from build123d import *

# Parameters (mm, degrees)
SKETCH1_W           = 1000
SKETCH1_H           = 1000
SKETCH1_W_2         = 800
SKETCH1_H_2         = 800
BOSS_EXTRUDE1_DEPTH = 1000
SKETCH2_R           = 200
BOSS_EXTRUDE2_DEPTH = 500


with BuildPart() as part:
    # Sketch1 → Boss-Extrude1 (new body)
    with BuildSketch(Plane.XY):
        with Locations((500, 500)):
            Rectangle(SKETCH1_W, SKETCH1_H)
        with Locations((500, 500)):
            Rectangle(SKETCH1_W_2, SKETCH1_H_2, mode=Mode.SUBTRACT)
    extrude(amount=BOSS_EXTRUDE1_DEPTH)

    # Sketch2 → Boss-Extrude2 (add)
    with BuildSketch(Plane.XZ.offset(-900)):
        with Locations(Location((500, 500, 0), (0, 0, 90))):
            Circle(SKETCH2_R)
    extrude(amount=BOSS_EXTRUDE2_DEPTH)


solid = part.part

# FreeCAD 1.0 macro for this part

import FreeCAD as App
import Part
import Sketcher
from FreeCAD import Vector


def add_polygon(sketch, points):
    """Adds a closed chain of lines whose ends are joined by coincident constraints."""
    first, n = sketch.GeometryCount, len(points)
    for a, b in zip(points, points[1:] + points[:1]):
        sketch.addGeometry(Part.LineSegment(App.Vector(*a, 0), App.Vector(*b, 0)), False)
    for i in range(n):
        sketch.addConstraint(Sketcher.Constraint("Coincident", first + i, 2, first + (i + 1) % n, 1))

doc = App.newDocument("Part")
body = doc.addObject("PartDesign::Body", "Body")

sketch1 = body.newObject("Sketcher::SketchObject", "Sketch")
sketch1.AttachmentSupport = (doc.getObject("XY_Plane"), [""])
sketch1.MapMode = "FlatFace"
add_polygon(sketch1, [(0, 1000), (0, 0), (1000, 0), (1000, 1000)])
add_polygon(sketch1, [(900, 100), (100, 100), (100, 900), (900, 900)])
sketch1.addConstraint(Sketcher.Constraint("Vertical", 0))
sketch1.addConstraint(Sketcher.Constraint("Horizontal", 1))
sketch1.addConstraint(Sketcher.Constraint("Vertical", 2))
sketch1.addConstraint(Sketcher.Constraint("Horizontal", 3))
sketch1.addConstraint(Sketcher.Constraint("Horizontal", 4))
sketch1.addConstraint(Sketcher.Constraint("Vertical", 5))
sketch1.addConstraint(Sketcher.Constraint("Horizontal", 6))
sketch1.addConstraint(Sketcher.Constraint("Vertical", 7))
sketch1.addConstraint(Sketcher.Constraint("Coincident", 0, 2, -1, 1))
sketch1.addConstraint(Sketcher.Constraint("Equal", 3, 0))
sketch1.addConstraint(Sketcher.Constraint("Equal", 6, 5))
sketch1.addConstraint(Sketcher.Constraint("DistanceX", 1, 1, 1, 2, 1000.0))
sketch1.addConstraint(Sketcher.Constraint("DistanceX", 4, 2, 4, 1, 800.0))
sketch1.addConstraint(Sketcher.Constraint("DistanceX", -1, 1, 4, 2, 100.0))
sketch1.addConstraint(Sketcher.Constraint("DistanceY", -1, 1, 4, 2, 100.0))
pad1 = body.newObject("PartDesign::Pad", "Pad")
pad1.Profile = sketch1
pad1.Length = 1000

sketch2 = body.newObject("Sketcher::SketchObject", "Sketch001")
sketch2.AttachmentSupport = (doc.getObject("XZ_Plane"), [""])
sketch2.MapMode = "FlatFace"
sketch2.AttachmentOffset = App.Placement(Vector(0, 0, -900), App.Rotation())
sketch2.addGeometry(Part.Circle(Vector(500, 500, 0), Vector(0, 0, 1), 200), False)
sketch2.addConstraint(Sketcher.Constraint("Diameter", 0, 400.0))
sketch2.addConstraint(Sketcher.Constraint("DistanceX", -1, 1, 0, 3, 500.0))
sketch2.addConstraint(Sketcher.Constraint("DistanceY", -1, 1, 0, 3, 500.0))
pad2 = body.newObject("PartDesign::Pad", "Pad001")
pad2.Profile = sketch2
pad2.Length = 500

doc.recompute()
